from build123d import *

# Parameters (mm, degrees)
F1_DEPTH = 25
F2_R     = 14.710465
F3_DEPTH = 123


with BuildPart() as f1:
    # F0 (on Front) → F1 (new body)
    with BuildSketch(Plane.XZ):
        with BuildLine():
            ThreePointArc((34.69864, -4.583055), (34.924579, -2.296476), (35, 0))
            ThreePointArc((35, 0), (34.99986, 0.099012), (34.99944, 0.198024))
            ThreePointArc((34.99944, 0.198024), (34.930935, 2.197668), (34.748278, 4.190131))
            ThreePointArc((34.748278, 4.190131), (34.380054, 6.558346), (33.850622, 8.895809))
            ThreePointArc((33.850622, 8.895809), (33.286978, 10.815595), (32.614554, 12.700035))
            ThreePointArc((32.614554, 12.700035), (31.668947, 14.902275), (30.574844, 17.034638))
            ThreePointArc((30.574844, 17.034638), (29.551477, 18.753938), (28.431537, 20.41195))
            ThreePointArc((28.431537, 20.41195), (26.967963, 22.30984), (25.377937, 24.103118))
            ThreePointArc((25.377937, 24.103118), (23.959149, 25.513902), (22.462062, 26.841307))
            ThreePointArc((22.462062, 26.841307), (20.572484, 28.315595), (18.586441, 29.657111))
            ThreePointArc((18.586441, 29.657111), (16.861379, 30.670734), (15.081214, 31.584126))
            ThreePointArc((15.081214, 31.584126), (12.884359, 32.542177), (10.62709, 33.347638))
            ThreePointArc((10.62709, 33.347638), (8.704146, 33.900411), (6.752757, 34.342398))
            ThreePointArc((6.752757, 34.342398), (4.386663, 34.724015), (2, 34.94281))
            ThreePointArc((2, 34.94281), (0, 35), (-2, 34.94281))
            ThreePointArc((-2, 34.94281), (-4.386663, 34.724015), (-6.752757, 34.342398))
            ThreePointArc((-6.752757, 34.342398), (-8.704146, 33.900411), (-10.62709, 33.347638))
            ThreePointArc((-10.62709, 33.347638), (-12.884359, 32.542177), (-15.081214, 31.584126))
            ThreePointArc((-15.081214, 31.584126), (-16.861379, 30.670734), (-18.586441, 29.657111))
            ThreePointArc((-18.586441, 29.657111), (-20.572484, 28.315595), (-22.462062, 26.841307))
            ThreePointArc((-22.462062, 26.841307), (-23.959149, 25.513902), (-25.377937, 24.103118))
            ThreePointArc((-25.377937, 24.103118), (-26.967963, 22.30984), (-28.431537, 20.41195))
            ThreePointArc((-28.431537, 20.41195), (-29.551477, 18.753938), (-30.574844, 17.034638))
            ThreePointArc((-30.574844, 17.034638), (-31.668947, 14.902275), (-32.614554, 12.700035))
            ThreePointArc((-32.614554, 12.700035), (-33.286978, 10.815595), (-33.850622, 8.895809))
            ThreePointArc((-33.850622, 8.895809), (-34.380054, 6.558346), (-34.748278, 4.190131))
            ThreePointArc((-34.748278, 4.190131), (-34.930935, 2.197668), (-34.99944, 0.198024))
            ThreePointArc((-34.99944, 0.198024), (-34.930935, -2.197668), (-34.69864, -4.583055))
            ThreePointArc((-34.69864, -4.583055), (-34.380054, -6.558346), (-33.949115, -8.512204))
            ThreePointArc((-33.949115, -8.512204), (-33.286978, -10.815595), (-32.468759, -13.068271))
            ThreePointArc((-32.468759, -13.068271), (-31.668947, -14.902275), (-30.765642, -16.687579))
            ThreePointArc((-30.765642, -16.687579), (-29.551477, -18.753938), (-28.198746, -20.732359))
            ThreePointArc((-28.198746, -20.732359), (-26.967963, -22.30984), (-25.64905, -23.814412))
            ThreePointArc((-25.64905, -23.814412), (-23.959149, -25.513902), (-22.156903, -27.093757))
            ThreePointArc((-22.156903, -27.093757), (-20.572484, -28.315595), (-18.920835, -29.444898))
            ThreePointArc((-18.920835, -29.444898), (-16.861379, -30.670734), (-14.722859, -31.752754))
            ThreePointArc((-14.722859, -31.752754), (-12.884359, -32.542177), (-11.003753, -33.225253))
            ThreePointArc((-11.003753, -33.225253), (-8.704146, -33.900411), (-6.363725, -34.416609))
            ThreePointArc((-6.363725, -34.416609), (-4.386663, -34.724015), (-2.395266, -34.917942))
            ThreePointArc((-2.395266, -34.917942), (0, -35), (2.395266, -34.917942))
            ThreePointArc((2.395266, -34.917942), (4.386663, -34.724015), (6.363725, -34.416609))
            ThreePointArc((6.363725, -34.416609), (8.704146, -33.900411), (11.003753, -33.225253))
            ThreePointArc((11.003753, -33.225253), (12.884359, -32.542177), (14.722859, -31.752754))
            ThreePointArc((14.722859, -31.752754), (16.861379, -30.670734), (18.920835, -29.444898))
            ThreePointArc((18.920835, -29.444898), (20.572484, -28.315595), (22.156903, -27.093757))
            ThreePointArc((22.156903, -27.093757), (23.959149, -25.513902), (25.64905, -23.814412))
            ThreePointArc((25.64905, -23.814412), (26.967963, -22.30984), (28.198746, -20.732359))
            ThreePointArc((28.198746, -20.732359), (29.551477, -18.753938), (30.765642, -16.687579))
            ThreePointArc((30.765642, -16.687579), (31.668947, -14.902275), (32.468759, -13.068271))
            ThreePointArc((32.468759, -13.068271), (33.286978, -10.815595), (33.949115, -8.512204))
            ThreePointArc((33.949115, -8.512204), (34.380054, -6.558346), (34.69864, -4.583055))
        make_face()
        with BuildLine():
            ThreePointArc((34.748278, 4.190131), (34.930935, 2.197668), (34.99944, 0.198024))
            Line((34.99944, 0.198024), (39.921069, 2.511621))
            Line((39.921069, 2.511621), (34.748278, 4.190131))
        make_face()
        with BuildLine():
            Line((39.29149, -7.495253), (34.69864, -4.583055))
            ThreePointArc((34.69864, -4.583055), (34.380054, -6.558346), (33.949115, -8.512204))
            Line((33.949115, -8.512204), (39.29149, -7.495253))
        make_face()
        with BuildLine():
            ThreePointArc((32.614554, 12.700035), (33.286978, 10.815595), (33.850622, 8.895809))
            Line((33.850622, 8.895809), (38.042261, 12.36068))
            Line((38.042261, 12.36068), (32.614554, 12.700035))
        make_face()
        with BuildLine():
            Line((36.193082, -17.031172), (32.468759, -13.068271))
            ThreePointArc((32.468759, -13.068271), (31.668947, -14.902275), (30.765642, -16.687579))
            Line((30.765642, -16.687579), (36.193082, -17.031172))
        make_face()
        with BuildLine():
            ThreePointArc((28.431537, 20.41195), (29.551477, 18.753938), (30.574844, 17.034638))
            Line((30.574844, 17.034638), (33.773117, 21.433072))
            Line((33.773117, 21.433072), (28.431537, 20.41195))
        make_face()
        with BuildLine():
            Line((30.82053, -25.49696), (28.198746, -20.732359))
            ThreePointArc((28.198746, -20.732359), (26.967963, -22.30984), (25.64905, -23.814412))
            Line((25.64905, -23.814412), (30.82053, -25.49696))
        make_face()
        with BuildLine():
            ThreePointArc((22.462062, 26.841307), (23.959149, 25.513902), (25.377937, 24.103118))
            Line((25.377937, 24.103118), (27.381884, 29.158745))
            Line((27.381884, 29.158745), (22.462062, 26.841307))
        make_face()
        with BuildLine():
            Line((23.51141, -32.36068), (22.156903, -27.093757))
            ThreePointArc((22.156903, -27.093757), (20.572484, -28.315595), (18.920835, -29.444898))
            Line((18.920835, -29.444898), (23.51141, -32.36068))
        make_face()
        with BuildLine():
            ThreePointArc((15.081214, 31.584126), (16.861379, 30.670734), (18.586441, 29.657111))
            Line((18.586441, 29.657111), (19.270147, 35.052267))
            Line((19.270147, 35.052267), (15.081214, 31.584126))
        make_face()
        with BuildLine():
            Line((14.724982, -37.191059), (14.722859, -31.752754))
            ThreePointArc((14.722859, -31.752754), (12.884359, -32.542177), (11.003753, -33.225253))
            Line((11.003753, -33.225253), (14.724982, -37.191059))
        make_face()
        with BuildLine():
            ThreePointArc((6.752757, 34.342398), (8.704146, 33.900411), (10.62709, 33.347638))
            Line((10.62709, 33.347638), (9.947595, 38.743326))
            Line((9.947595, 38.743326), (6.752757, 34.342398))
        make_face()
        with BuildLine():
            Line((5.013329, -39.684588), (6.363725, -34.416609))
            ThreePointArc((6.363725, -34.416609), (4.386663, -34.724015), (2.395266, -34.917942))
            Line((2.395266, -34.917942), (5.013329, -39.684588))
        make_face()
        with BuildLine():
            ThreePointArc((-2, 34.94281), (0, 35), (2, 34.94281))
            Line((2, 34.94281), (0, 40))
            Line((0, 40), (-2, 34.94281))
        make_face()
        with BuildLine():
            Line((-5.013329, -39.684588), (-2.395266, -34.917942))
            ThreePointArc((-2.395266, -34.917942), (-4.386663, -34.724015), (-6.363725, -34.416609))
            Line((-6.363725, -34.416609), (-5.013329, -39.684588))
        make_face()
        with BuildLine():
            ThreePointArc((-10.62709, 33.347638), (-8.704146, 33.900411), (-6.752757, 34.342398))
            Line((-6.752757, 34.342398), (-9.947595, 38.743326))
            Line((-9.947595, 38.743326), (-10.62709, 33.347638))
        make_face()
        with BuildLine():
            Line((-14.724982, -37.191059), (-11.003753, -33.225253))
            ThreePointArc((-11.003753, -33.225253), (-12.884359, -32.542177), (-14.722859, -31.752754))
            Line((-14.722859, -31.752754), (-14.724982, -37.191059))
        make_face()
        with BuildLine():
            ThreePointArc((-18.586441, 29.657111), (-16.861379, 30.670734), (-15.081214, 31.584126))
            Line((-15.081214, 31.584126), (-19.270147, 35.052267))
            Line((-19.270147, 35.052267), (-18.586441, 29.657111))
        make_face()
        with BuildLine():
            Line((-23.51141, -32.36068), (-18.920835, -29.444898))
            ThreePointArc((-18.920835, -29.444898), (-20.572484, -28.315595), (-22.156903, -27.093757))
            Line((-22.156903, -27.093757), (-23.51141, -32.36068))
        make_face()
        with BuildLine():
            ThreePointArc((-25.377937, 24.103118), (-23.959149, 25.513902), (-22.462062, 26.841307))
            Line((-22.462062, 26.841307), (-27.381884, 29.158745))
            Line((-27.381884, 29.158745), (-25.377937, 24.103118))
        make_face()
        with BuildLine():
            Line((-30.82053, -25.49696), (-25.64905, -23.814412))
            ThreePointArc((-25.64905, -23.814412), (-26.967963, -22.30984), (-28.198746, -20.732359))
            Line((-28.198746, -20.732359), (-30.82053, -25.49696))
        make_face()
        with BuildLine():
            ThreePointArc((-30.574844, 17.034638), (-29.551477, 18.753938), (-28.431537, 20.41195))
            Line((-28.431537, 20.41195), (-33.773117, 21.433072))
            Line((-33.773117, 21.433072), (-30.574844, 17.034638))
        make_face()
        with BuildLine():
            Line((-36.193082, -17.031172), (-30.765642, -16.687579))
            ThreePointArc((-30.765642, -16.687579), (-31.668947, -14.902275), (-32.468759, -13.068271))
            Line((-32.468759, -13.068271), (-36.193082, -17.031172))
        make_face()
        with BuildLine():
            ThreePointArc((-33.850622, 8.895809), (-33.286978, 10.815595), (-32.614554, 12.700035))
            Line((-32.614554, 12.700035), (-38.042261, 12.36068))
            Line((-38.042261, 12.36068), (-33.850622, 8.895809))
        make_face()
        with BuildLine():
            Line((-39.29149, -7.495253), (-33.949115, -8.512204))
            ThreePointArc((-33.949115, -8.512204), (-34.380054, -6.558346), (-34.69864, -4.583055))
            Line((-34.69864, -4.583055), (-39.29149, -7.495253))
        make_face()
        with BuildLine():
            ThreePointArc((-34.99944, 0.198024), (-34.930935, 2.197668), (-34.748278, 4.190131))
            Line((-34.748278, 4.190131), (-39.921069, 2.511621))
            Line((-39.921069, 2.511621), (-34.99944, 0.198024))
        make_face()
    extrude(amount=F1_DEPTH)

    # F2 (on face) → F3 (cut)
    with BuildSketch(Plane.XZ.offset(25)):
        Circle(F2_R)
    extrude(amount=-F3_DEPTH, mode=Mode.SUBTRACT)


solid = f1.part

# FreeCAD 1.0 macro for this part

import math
import FreeCAD as App
import Part
import Sketcher

V = App.Vector
Q = App.Units.Quantity

doc = App.newDocument("Part")
params = doc.addObject("Spreadsheet::Sheet", "Params")
for row, (alias, value) in enumerate([
    ("pad1_length", "25 mm"),
    ("pocket1_length", "123 mm"),
], start=1):
    params.set(f"A{row}", alias)
    params.set(f"B{row}", "=" + value)
    params.setAlias(f"B{row}", alias)

body = doc.addObject("PartDesign::Body", "Body")

# Sketch on XZ plane
sketch1 = body.newObject("Sketcher::SketchObject", "Sketch")
sketch1.AttachmentSupport = (doc.getObject("XZ_Plane"), [""])
sketch1.MapMode = "FlatFace"
sketch1.addGeometry(Part.ArcOfCircle(Part.Circle(V(0.000098, -0.000008, 0), V(0, 0, 1), 34.999902), math.radians(-7.524179), math.radians(0.000013)), False)
sketch1.addGeometry(Part.ArcOfCircle(Part.Circle(V(-0.012548, -0.000001, 0), V(0, 0, 1), 35.012548), math.radians(0.000001), math.radians(0.324056)), False)
sketch1.addGeometry(Part.LineSegment(V(34.99944, 0.198024, 0), V(39.921069, 2.511621, 0)), False)
sketch1.addGeometry(Part.LineSegment(V(39.921069, 2.511621, 0), V(34.748278, 4.190131, 0)), False)
sketch1.addGeometry(Part.ArcOfCircle(Part.Circle(V(-0.000056, -0.00001, 0), V(0, 0, 1), 35.000057), math.radians(6.875835), math.radians(14.724163)), False)
sketch1.addGeometry(Part.LineSegment(V(33.850622, 8.895809, 0), V(38.042261, 12.36068, 0)), False)
sketch1.addGeometry(Part.LineSegment(V(38.042261, 12.36068, 0), V(32.614554, 12.700035, 0)), False)
sketch1.addGeometry(Part.ArcOfCircle(Part.Circle(V(0.000028, 0.000008, 0), V(0, 0, 1), 34.999971), math.radians(21.275833), math.radians(29.124182)), False)
sketch1.addGeometry(Part.LineSegment(V(30.574844, 17.034638, 0), V(33.773117, 21.433072, 0)), False)
sketch1.addGeometry(Part.LineSegment(V(33.773117, 21.433072, 0), V(28.431537, 20.41195, 0)), False)
sketch1.addGeometry(Part.ArcOfCircle(Part.Circle(V(-0.000009, -0.00001, 0), V(0, 0, 1), 35.000013), math.radians(35.675833), math.radians(43.524172)), False)
sketch1.addGeometry(Part.LineSegment(V(25.377937, 24.103118, 0), V(27.381884, 29.158745, 0)), False)
sketch1.addGeometry(Part.LineSegment(V(27.381884, 29.158745, 0), V(22.462062, 26.841307, 0)), False)
sketch1.addGeometry(Part.ArcOfCircle(Part.Circle(V(0.00004, 0.00006, 0), V(0, 0, 1), 34.999928), math.radians(50.075816), math.radians(57.924173)), False)
sketch1.addGeometry(Part.LineSegment(V(18.586441, 29.657111, 0), V(19.270147, 35.052267, 0)), False)
sketch1.addGeometry(Part.LineSegment(V(19.270147, 35.052267, 0), V(15.081214, 31.584126, 0)), False)
sketch1.addGeometry(Part.ArcOfCircle(Part.Circle(V(-0.000055, -0.000147, 0), V(0, 0, 1), 35.000157), math.radians(64.475852), math.radians(72.324158)), False)
sketch1.addGeometry(Part.LineSegment(V(10.62709, 33.347638, 0), V(9.947595, 38.743326, 0)), False)
sketch1.addGeometry(Part.LineSegment(V(9.947595, 38.743326, 0), V(6.752757, 34.342398, 0)), False)
sketch1.addGeometry(Part.ArcOfCircle(Part.Circle(V(0.000029, 0.000186, 0), V(0, 0, 1), 34.999812), math.radians(78.875818), math.radians(86.724202)), False)
sketch1.addGeometry(Part.LineSegment(V(2, 34.94281, 0), V(0, 40, 0)), False)
sketch1.addGeometry(Part.LineSegment(V(0, 40, 0), V(-2, 34.94281, 0)), False)
sketch1.addGeometry(Part.ArcOfCircle(Part.Circle(V(-0.000029, 0.000186, 0), V(0, 0, 1), 34.999812), math.radians(93.275798), math.radians(101.124182)), False)
sketch1.addGeometry(Part.LineSegment(V(-6.752757, 34.342398, 0), V(-9.947595, 38.743326, 0)), False)
sketch1.addGeometry(Part.LineSegment(V(-9.947595, 38.743326, 0), V(-10.62709, 33.347638, 0)), False)
sketch1.addGeometry(Part.ArcOfCircle(Part.Circle(V(0.000055, -0.000147, 0), V(0, 0, 1), 35.000157), math.radians(107.675842), math.radians(115.524148)), False)
sketch1.addGeometry(Part.LineSegment(V(-15.081214, 31.584126, 0), V(-19.270147, 35.052267, 0)), False)
sketch1.addGeometry(Part.LineSegment(V(-19.270147, 35.052267, 0), V(-18.586441, 29.657111, 0)), False)
sketch1.addGeometry(Part.ArcOfCircle(Part.Circle(V(-0.00004, 0.00006, 0), V(0, 0, 1), 34.999928), math.radians(122.075827), math.radians(129.924184)), False)
sketch1.addGeometry(Part.LineSegment(V(-22.462062, 26.841307, 0), V(-27.381884, 29.158745, 0)), False)
sketch1.addGeometry(Part.LineSegment(V(-27.381884, 29.158745, 0), V(-25.377937, 24.103118, 0)), False)
sketch1.addGeometry(Part.ArcOfCircle(Part.Circle(V(0.000009, -0.00001, 0), V(0, 0, 1), 35.000013), math.radians(136.475828), math.radians(144.324167)), False)
sketch1.addGeometry(Part.LineSegment(V(-28.431537, 20.41195, 0), V(-33.773117, 21.433072, 0)), False)
sketch1.addGeometry(Part.LineSegment(V(-33.773117, 21.433072, 0), V(-30.574844, 17.034638, 0)), False)
sketch1.addGeometry(Part.ArcOfCircle(Part.Circle(V(-0.000028, 0.000008, 0), V(0, 0, 1), 34.999971), math.radians(150.875818), math.radians(158.724167)), False)
sketch1.addGeometry(Part.LineSegment(V(-32.614554, 12.700035, 0), V(-38.042261, 12.36068, 0)), False)
sketch1.addGeometry(Part.LineSegment(V(-38.042261, 12.36068, 0), V(-33.850622, 8.895809, 0)), False)
sketch1.addGeometry(Part.ArcOfCircle(Part.Circle(V(0.000056, -0.00001, 0), V(0, 0, 1), 35.000057), math.radians(165.275837), math.radians(173.124165)), False)
sketch1.addGeometry(Part.LineSegment(V(-34.748278, 4.190131, 0), V(-39.921069, 2.511621, 0)), False)
sketch1.addGeometry(Part.LineSegment(V(-39.921069, 2.511621, 0), V(-34.99944, 0.198024, 0)), False)
sketch1.addGeometry(Part.ArcOfCircle(Part.Circle(V(0.000291, 0.000019, 0), V(0, 0, 1), 35.000291), math.radians(179.675862), math.radians(187.524138)), False)
sketch1.addGeometry(Part.LineSegment(V(-34.69864, -4.583055, 0), V(-39.29149, -7.495253, 0)), False)
sketch1.addGeometry(Part.LineSegment(V(-39.29149, -7.495253, 0), V(-33.949115, -8.512204, 0)), False)
sketch1.addGeometry(Part.ArcOfCircle(Part.Circle(V(0.00013, 0.000043, 0), V(0, 0, 1), 35.000137), math.radians(-165.924155), math.radians(-158.075843)), False)
sketch1.addGeometry(Part.LineSegment(V(-32.468759, -13.068271, 0), V(-36.193082, -17.031172, 0)), False)
sketch1.addGeometry(Part.LineSegment(V(-36.193082, -17.031172, 0), V(-30.765642, -16.687579, 0)), False)
sketch1.addGeometry(Part.ArcOfCircle(Part.Circle(V(0.0001, 0.000067, 0), V(0, 0, 1), 35.00012), math.radians(-151.524152), math.radians(-143.675837)), False)
sketch1.addGeometry(Part.LineSegment(V(-28.198746, -20.732359, 0), V(-30.82053, -25.49696, 0)), False)
sketch1.addGeometry(Part.LineSegment(V(-30.82053, -25.49696, 0), V(-25.64905, -23.814412, 0)), False)
sketch1.addGeometry(Part.ArcOfCircle(Part.Circle(V(-0.000057, -0.000066, 0), V(0, 0, 1), 34.999914), math.radians(-137.124186), math.radians(-129.275826)), False)
sketch1.addGeometry(Part.LineSegment(V(-22.156903, -27.093757, 0), V(-23.51141, -32.36068, 0)), False)
sketch1.addGeometry(Part.LineSegment(V(-23.51141, -32.36068, 0), V(-18.920835, -29.444898, 0)), False)
sketch1.addGeometry(Part.ArcOfCircle(Part.Circle(V(-0.000111, -0.000192, 0), V(0, 0, 1), 34.999779), math.radians(-122.724188), math.radians(-114.875795)), False)
sketch1.addGeometry(Part.LineSegment(V(-14.722859, -31.752754, 0), V(-14.724982, -37.191059, 0)), False)
sketch1.addGeometry(Part.LineSegment(V(-14.724982, -37.191059, 0), V(-11.003753, -33.225253, 0)), False)
sketch1.addGeometry(Part.ArcOfCircle(Part.Circle(V(-0.000049, -0.000173, 0), V(0, 0, 1), 34.99982), math.radians(-108.324182), math.radians(-100.475801)), False)
sketch1.addGeometry(Part.LineSegment(V(-6.363725, -34.416609, 0), V(-5.013329, -39.684588, 0)), False)
sketch1.addGeometry(Part.LineSegment(V(-5.013329, -39.684588, 0), V(-2.395266, -34.917942, 0)), False)
sketch1.addGeometry(Part.ArcOfCircle(Part.Circle(V(0, -0.000166, 0), V(0, 0, 1), 34.999834), math.radians(-93.92419), math.radians(-86.07581)), False)
sketch1.addGeometry(Part.LineSegment(V(2.395266, -34.917942, 0), V(5.013329, -39.684588, 0)), False)
sketch1.addGeometry(Part.LineSegment(V(5.013329, -39.684588, 0), V(6.363725, -34.416609, 0)), False)
sketch1.addGeometry(Part.ArcOfCircle(Part.Circle(V(0.000049, -0.000173, 0), V(0, 0, 1), 34.99982), math.radians(-79.524199), math.radians(-71.675818)), False)
sketch1.addGeometry(Part.LineSegment(V(11.003753, -33.225253, 0), V(14.724982, -37.191059, 0)), False)
sketch1.addGeometry(Part.LineSegment(V(14.724982, -37.191059, 0), V(14.722859, -31.752754, 0)), False)
sketch1.addGeometry(Part.ArcOfCircle(Part.Circle(V(0.000111, -0.000192, 0), V(0, 0, 1), 34.999779), math.radians(-65.124205), math.radians(-57.275812)), False)
sketch1.addGeometry(Part.LineSegment(V(18.920835, -29.444898, 0), V(23.51141, -32.36068, 0)), False)
sketch1.addGeometry(Part.LineSegment(V(23.51141, -32.36068, 0), V(22.156903, -27.093757, 0)), False)
sketch1.addGeometry(Part.ArcOfCircle(Part.Circle(V(0.000057, -0.000066, 0), V(0, 0, 1), 34.999914), math.radians(-50.724174), math.radians(-42.875814)), False)
sketch1.addGeometry(Part.LineSegment(V(25.64905, -23.814412, 0), V(30.82053, -25.49696, 0)), False)
sketch1.addGeometry(Part.LineSegment(V(30.82053, -25.49696, 0), V(28.198746, -20.732359, 0)), False)
sketch1.addGeometry(Part.ArcOfCircle(Part.Circle(V(-0.0001, 0.000067, 0), V(0, 0, 1), 35.00012), math.radians(-36.324163), math.radians(-28.475848)), False)
sketch1.addGeometry(Part.LineSegment(V(30.765642, -16.687579, 0), V(36.193082, -17.031172, 0)), False)
sketch1.addGeometry(Part.LineSegment(V(36.193082, -17.031172, 0), V(32.468759, -13.068271, 0)), False)
sketch1.addGeometry(Part.ArcOfCircle(Part.Circle(V(-0.00013, 0.000043, 0), V(0, 0, 1), 35.000137), math.radians(-21.924157), math.radians(-14.075845)), False)
sketch1.addGeometry(Part.LineSegment(V(33.949115, -8.512204, 0), V(39.29149, -7.495253, 0)), False)
sketch1.addGeometry(Part.LineSegment(V(39.29149, -7.495253, 0), V(34.69864, -4.583055, 0)), False)
sketch1.addConstraint(Sketcher.Constraint("Coincident", 0, 2, 1, 1))
sketch1.addConstraint(Sketcher.Constraint("Coincident", 1, 2, 2, 1))
sketch1.addConstraint(Sketcher.Constraint("Coincident", 2, 2, 3, 1))
sketch1.addConstraint(Sketcher.Constraint("Coincident", 3, 2, 4, 1))
sketch1.addConstraint(Sketcher.Constraint("Coincident", 4, 2, 5, 1))
sketch1.addConstraint(Sketcher.Constraint("Coincident", 5, 2, 6, 1))
sketch1.addConstraint(Sketcher.Constraint("Coincident", 6, 2, 7, 1))
sketch1.addConstraint(Sketcher.Constraint("Coincident", 7, 2, 8, 1))
sketch1.addConstraint(Sketcher.Constraint("Coincident", 8, 2, 9, 1))
sketch1.addConstraint(Sketcher.Constraint("Coincident", 9, 2, 10, 1))
sketch1.addConstraint(Sketcher.Constraint("Coincident", 10, 2, 11, 1))
sketch1.addConstraint(Sketcher.Constraint("Coincident", 11, 2, 12, 1))
sketch1.addConstraint(Sketcher.Constraint("Coincident", 12, 2, 13, 1))
sketch1.addConstraint(Sketcher.Constraint("Coincident", 13, 2, 14, 1))
sketch1.addConstraint(Sketcher.Constraint("Coincident", 14, 2, 15, 1))
sketch1.addConstraint(Sketcher.Constraint("Coincident", 15, 2, 16, 1))
sketch1.addConstraint(Sketcher.Constraint("Coincident", 16, 2, 17, 1))
sketch1.addConstraint(Sketcher.Constraint("Coincident", 17, 2, 18, 1))
sketch1.addConstraint(Sketcher.Constraint("Coincident", 18, 2, 19, 1))
sketch1.addConstraint(Sketcher.Constraint("Coincident", 19, 2, 20, 1))
sketch1.addConstraint(Sketcher.Constraint("Coincident", 20, 2, 21, 1))
sketch1.addConstraint(Sketcher.Constraint("Coincident", 21, 2, 22, 1))
sketch1.addConstraint(Sketcher.Constraint("Coincident", 22, 2, 23, 1))
sketch1.addConstraint(Sketcher.Constraint("Coincident", 23, 2, 24, 1))
sketch1.addConstraint(Sketcher.Constraint("Coincident", 24, 2, 25, 1))
sketch1.addConstraint(Sketcher.Constraint("Coincident", 25, 2, 26, 1))
sketch1.addConstraint(Sketcher.Constraint("Coincident", 26, 2, 27, 1))
sketch1.addConstraint(Sketcher.Constraint("Coincident", 27, 2, 28, 1))
sketch1.addConstraint(Sketcher.Constraint("Coincident", 28, 2, 29, 1))
sketch1.addConstraint(Sketcher.Constraint("Coincident", 29, 2, 30, 1))
sketch1.addConstraint(Sketcher.Constraint("Coincident", 30, 2, 31, 1))
sketch1.addConstraint(Sketcher.Constraint("Coincident", 31, 2, 32, 1))
sketch1.addConstraint(Sketcher.Constraint("Coincident", 32, 2, 33, 1))
sketch1.addConstraint(Sketcher.Constraint("Coincident", 33, 2, 34, 1))
sketch1.addConstraint(Sketcher.Constraint("Coincident", 34, 2, 35, 1))
sketch1.addConstraint(Sketcher.Constraint("Coincident", 35, 2, 36, 1))
sketch1.addConstraint(Sketcher.Constraint("Coincident", 36, 2, 37, 1))
sketch1.addConstraint(Sketcher.Constraint("Coincident", 37, 2, 38, 1))
sketch1.addConstraint(Sketcher.Constraint("Coincident", 38, 2, 39, 1))
sketch1.addConstraint(Sketcher.Constraint("Coincident", 39, 2, 40, 1))
sketch1.addConstraint(Sketcher.Constraint("Coincident", 40, 2, 41, 1))
sketch1.addConstraint(Sketcher.Constraint("Coincident", 41, 2, 42, 1))
sketch1.addConstraint(Sketcher.Constraint("Coincident", 42, 2, 43, 1))
sketch1.addConstraint(Sketcher.Constraint("Coincident", 43, 2, 44, 1))
sketch1.addConstraint(Sketcher.Constraint("Coincident", 44, 2, 45, 1))
sketch1.addConstraint(Sketcher.Constraint("Coincident", 45, 2, 46, 1))
sketch1.addConstraint(Sketcher.Constraint("Coincident", 46, 2, 47, 1))
sketch1.addConstraint(Sketcher.Constraint("Coincident", 47, 2, 48, 1))
sketch1.addConstraint(Sketcher.Constraint("Coincident", 48, 2, 49, 1))
sketch1.addConstraint(Sketcher.Constraint("Coincident", 49, 2, 50, 1))
sketch1.addConstraint(Sketcher.Constraint("Coincident", 50, 2, 51, 1))
sketch1.addConstraint(Sketcher.Constraint("Coincident", 51, 2, 52, 1))
sketch1.addConstraint(Sketcher.Constraint("Coincident", 52, 2, 53, 1))
sketch1.addConstraint(Sketcher.Constraint("Coincident", 53, 2, 54, 1))
sketch1.addConstraint(Sketcher.Constraint("Coincident", 54, 2, 55, 1))
sketch1.addConstraint(Sketcher.Constraint("Coincident", 55, 2, 56, 1))
sketch1.addConstraint(Sketcher.Constraint("Coincident", 56, 2, 57, 1))
sketch1.addConstraint(Sketcher.Constraint("Coincident", 57, 2, 58, 1))
sketch1.addConstraint(Sketcher.Constraint("Coincident", 58, 2, 59, 1))
sketch1.addConstraint(Sketcher.Constraint("Coincident", 59, 2, 60, 1))
sketch1.addConstraint(Sketcher.Constraint("Coincident", 60, 2, 61, 1))
sketch1.addConstraint(Sketcher.Constraint("Coincident", 61, 2, 62, 1))
sketch1.addConstraint(Sketcher.Constraint("Coincident", 62, 2, 63, 1))
sketch1.addConstraint(Sketcher.Constraint("Coincident", 63, 2, 64, 1))
sketch1.addConstraint(Sketcher.Constraint("Coincident", 64, 2, 65, 1))
sketch1.addConstraint(Sketcher.Constraint("Coincident", 65, 2, 66, 1))
sketch1.addConstraint(Sketcher.Constraint("Coincident", 66, 2, 67, 1))
sketch1.addConstraint(Sketcher.Constraint("Coincident", 67, 2, 68, 1))
sketch1.addConstraint(Sketcher.Constraint("Coincident", 68, 2, 69, 1))
sketch1.addConstraint(Sketcher.Constraint("Coincident", 69, 2, 70, 1))
sketch1.addConstraint(Sketcher.Constraint("Coincident", 70, 2, 71, 1))
sketch1.addConstraint(Sketcher.Constraint("Coincident", 71, 2, 72, 1))
sketch1.addConstraint(Sketcher.Constraint("Coincident", 72, 2, 73, 1))
sketch1.addConstraint(Sketcher.Constraint("Coincident", 73, 2, 74, 1))
sketch1.addConstraint(Sketcher.Constraint("Coincident", 74, 2, 75, 1))
sketch1.addConstraint(Sketcher.Constraint("Coincident", 75, 2, 0, 1))
sketch1.addConstraint(Sketcher.Constraint("PointOnObject", 1, 3, -1))
sketch1.addConstraint(Sketcher.Constraint("PointOnObject", 58, 3, -2))
sketch1.addConstraint(Sketcher.Constraint("PointOnObject", 0, 2, -1))
sketch1.addConstraint(Sketcher.Constraint("PointOnObject", 20, 2, -2))
sketch1.addConstraint(Sketcher.Constraint("DistanceX", -1, 1, 0, 2, Q("35 mm")))
sketch1.addConstraint(Sketcher.Constraint("DistanceX", -1, 1, 19, 2, Q("2 mm")))
sketch1.addConstraint(Sketcher.Constraint("DistanceY", -1, 1, 20, 2, Q("40 mm")))
sketch1.addConstraint(Sketcher.Constraint("DistanceX", 21, 2, -1, 1, Q("2 mm")))
sketch1.addConstraint(Sketcher.Constraint("Radius", 0, Q("34.999902 mm")))
sketch1.addConstraint(Sketcher.Constraint("Radius", 7, Q("34.999971 mm")))
sketch1.addConstraint(Sketcher.Constraint("Radius", 13, Q("34.999928 mm")))
sketch1.addConstraint(Sketcher.Constraint("Radius", 28, Q("34.999928 mm")))
sketch1.addConstraint(Sketcher.Constraint("Radius", 34, Q("34.999971 mm")))
sketch1.addConstraint(Sketcher.Constraint("Radius", 40, Q("35.000291 mm")))
sketch1.addConstraint(Sketcher.Constraint("Radius", 46, Q("35.00012 mm")))
sketch1.addConstraint(Sketcher.Constraint("Radius", 52, Q("34.999779 mm")))
sketch1.addConstraint(Sketcher.Constraint("Radius", 55, Q("34.99982 mm")))
sketch1.addConstraint(Sketcher.Constraint("Radius", 61, Q("34.99982 mm")))
sketch1.addConstraint(Sketcher.Constraint("Radius", 64, Q("34.999779 mm")))
sketch1.addConstraint(Sketcher.Constraint("Radius", 70, Q("35.00012 mm")))
sketch1.addConstraint(Sketcher.Constraint("Radius", 1, Q("35.012548 mm")))
sketch1.addConstraint(Sketcher.Constraint("Radius", 4, Q("35.000057 mm")))
sketch1.addConstraint(Sketcher.Constraint("Radius", 10, Q("35.000013 mm")))
sketch1.addConstraint(Sketcher.Constraint("Radius", 16, Q("35.000157 mm")))
sketch1.addConstraint(Sketcher.Constraint("Radius", 19, Q("34.999812 mm")))
sketch1.addConstraint(Sketcher.Constraint("Radius", 22, Q("34.999812 mm")))
sketch1.addConstraint(Sketcher.Constraint("Radius", 25, Q("35.000157 mm")))
sketch1.addConstraint(Sketcher.Constraint("Radius", 31, Q("35.000013 mm")))
sketch1.addConstraint(Sketcher.Constraint("Radius", 37, Q("35.000057 mm")))
sketch1.addConstraint(Sketcher.Constraint("Radius", 43, Q("35.000137 mm")))
sketch1.addConstraint(Sketcher.Constraint("Radius", 49, Q("34.999914 mm")))
sketch1.addConstraint(Sketcher.Constraint("Radius", 58, Q("34.999834 mm")))
sketch1.addConstraint(Sketcher.Constraint("Radius", 67, Q("34.999914 mm")))
sketch1.addConstraint(Sketcher.Constraint("Radius", 73, Q("35.000137 mm")))
sketch1.addConstraint(Sketcher.Constraint("DistanceY", -1, 1, 18, 2, Q("34.342398 mm")))
sketch1.addConstraint(Sketcher.Constraint("DistanceY", -1, 1, 22, 2, Q("34.342398 mm")))
sketch1.addConstraint(Sketcher.Constraint("DistanceX", -1, 1, 40, 3, Q("0.000291 mm")))
sketch1.addConstraint(Sketcher.Constraint("DistanceX", -1, 1, 43, 3, Q("0.00013 mm")))
sketch1.addConstraint(Sketcher.Constraint("DistanceX", 52, 3, -1, 1, Q("0.000111 mm")))
sketch1.addConstraint(Sketcher.Constraint("DistanceY", 52, 3, -1, 1, Q("0.000192 mm")))
sketch1.addConstraint(Sketcher.Constraint("DistanceX", -1, 1, 64, 3, Q("0.000111 mm")))
sketch1.addConstraint(Sketcher.Constraint("DistanceY", 64, 3, -1, 1, Q("0.000192 mm")))
sketch1.addConstraint(Sketcher.Constraint("DistanceX", 73, 3, -1, 1, Q("0.00013 mm")))
sketch1.addConstraint(Sketcher.Constraint("DistanceX", -1, 1, 1, 2, Q("34.99944 mm")))
sketch1.addConstraint(Sketcher.Constraint("DistanceX", -1, 1, 2, 2, Q("39.921069 mm")))
sketch1.addConstraint(Sketcher.Constraint("DistanceY", -1, 1, 2, 2, Q("2.511621 mm")))
sketch1.addConstraint(Sketcher.Constraint("DistanceY", -1, 1, 3, 2, Q("4.190131 mm")))
sketch1.addConstraint(Sketcher.Constraint("DistanceX", -1, 1, 4, 2, Q("33.850622 mm")))
sketch1.addConstraint(Sketcher.Constraint("DistanceY", -1, 1, 4, 2, Q("8.895809 mm")))
sketch1.addConstraint(Sketcher.Constraint("DistanceX", -1, 1, 5, 2, Q("38.042261 mm")))
sketch1.addConstraint(Sketcher.Constraint("DistanceY", -1, 1, 5, 2, Q("12.36068 mm")))
sketch1.addConstraint(Sketcher.Constraint("DistanceY", -1, 1, 7, 2, Q("17.034638 mm")))
sketch1.addConstraint(Sketcher.Constraint("DistanceY", -1, 1, 8, 2, Q("21.433072 mm")))
sketch1.addConstraint(Sketcher.Constraint("DistanceY", -1, 1, 9, 2, Q("20.41195 mm")))
sketch1.addConstraint(Sketcher.Constraint("DistanceX", -1, 1, 12, 2, Q("22.462062 mm")))
sketch1.addConstraint(Sketcher.Constraint("DistanceX", -1, 1, 13, 2, Q("18.586441 mm")))
sketch1.addConstraint(Sketcher.Constraint("DistanceY", -1, 1, 13, 2, Q("29.657111 mm")))
sketch1.addConstraint(Sketcher.Constraint("DistanceX", -1, 1, 16, 2, Q("10.62709 mm")))
sketch1.addConstraint(Sketcher.Constraint("DistanceY", -1, 1, 16, 2, Q("33.347638 mm")))
sketch1.addConstraint(Sketcher.Constraint("DistanceY", -1, 1, 19, 2, Q("34.94281 mm")))
sketch1.addConstraint(Sketcher.Constraint("DistanceY", -1, 1, 21, 2, Q("34.94281 mm")))
sketch1.addConstraint(Sketcher.Constraint("DistanceX", 24, 2, -1, 1, Q("10.62709 mm")))
sketch1.addConstraint(Sketcher.Constraint("DistanceY", -1, 1, 24, 2, Q("33.347638 mm")))
sketch1.addConstraint(Sketcher.Constraint("DistanceX", 27, 2, -1, 1, Q("18.586441 mm")))
sketch1.addConstraint(Sketcher.Constraint("DistanceY", -1, 1, 27, 2, Q("29.657111 mm")))
sketch1.addConstraint(Sketcher.Constraint("DistanceY", -1, 1, 31, 2, Q("20.41195 mm")))
sketch1.addConstraint(Sketcher.Constraint("DistanceY", -1, 1, 32, 2, Q("21.433072 mm")))
sketch1.addConstraint(Sketcher.Constraint("DistanceY", -1, 1, 33, 2, Q("17.034638 mm")))
sketch1.addConstraint(Sketcher.Constraint("DistanceX", 35, 2, -1, 1, Q("38.042261 mm")))
sketch1.addConstraint(Sketcher.Constraint("DistanceY", -1, 1, 35, 2, Q("12.36068 mm")))
sketch1.addConstraint(Sketcher.Constraint("DistanceY", -1, 1, 36, 2, Q("8.895809 mm")))
sketch1.addConstraint(Sketcher.Constraint("DistanceY", -1, 1, 37, 2, Q("4.190131 mm")))
sketch1.addConstraint(Sketcher.Constraint("DistanceX", 38, 2, -1, 1, Q("39.921069 mm")))
sketch1.addConstraint(Sketcher.Constraint("DistanceY", -1, 1, 38, 2, Q("2.511621 mm")))
sketch1.addConstraint(Sketcher.Constraint("DistanceX", 39, 2, -1, 1, Q("34.99944 mm")))
sketch1.addConstraint(Sketcher.Constraint("DistanceX", 40, 2, -1, 1, Q("34.69864 mm")))
sketch1.addConstraint(Sketcher.Constraint("DistanceX", 41, 2, -1, 1, Q("39.29149 mm")))
sketch1.addConstraint(Sketcher.Constraint("DistanceX", 43, 2, -1, 1, Q("32.468759 mm")))
sketch1.addConstraint(Sketcher.Constraint("DistanceY", 43, 2, -1, 1, Q("13.068271 mm")))
sketch1.addConstraint(Sketcher.Constraint("DistanceX", 44, 2, -1, 1, Q("36.193082 mm")))
sketch1.addConstraint(Sketcher.Constraint("DistanceX", 45, 2, -1, 1, Q("30.765642 mm")))
sketch1.addConstraint(Sketcher.Constraint("DistanceY", 45, 2, -1, 1, Q("16.687579 mm")))
sketch1.addConstraint(Sketcher.Constraint("DistanceY", 46, 2, -1, 1, Q("20.732359 mm")))
sketch1.addConstraint(Sketcher.Constraint("DistanceX", 47, 2, -1, 1, Q("30.82053 mm")))
sketch1.addConstraint(Sketcher.Constraint("DistanceY", 47, 2, -1, 1, Q("25.49696 mm")))
sketch1.addConstraint(Sketcher.Constraint("DistanceX", 48, 2, -1, 1, Q("25.64905 mm")))
sketch1.addConstraint(Sketcher.Constraint("DistanceX", 50, 2, -1, 1, Q("23.51141 mm")))
sketch1.addConstraint(Sketcher.Constraint("DistanceY", 50, 2, -1, 1, Q("32.36068 mm")))
sketch1.addConstraint(Sketcher.Constraint("DistanceX", 52, 2, -1, 1, Q("14.722859 mm")))
sketch1.addConstraint(Sketcher.Constraint("DistanceY", 53, 2, -1, 1, Q("37.191059 mm")))
sketch1.addConstraint(Sketcher.Constraint("DistanceY", 55, 2, -1, 1, Q("34.416609 mm")))
sketch1.addConstraint(Sketcher.Constraint("DistanceX", 56, 2, -1, 1, Q("5.013329 mm")))
sketch1.addConstraint(Sketcher.Constraint("DistanceY", 57, 2, -1, 1, Q("34.917942 mm")))
sketch1.addConstraint(Sketcher.Constraint("DistanceY", 58, 2, -1, 1, Q("34.917942 mm")))
sketch1.addConstraint(Sketcher.Constraint("DistanceX", -1, 1, 59, 2, Q("5.013329 mm")))
sketch1.addConstraint(Sketcher.Constraint("DistanceY", 60, 2, -1, 1, Q("34.416609 mm")))
sketch1.addConstraint(Sketcher.Constraint("DistanceY", 62, 2, -1, 1, Q("37.191059 mm")))
sketch1.addConstraint(Sketcher.Constraint("DistanceX", -1, 1, 63, 2, Q("14.722859 mm")))
sketch1.addConstraint(Sketcher.Constraint("DistanceX", -1, 1, 65, 2, Q("23.51141 mm")))
sketch1.addConstraint(Sketcher.Constraint("DistanceY", 65, 2, -1, 1, Q("32.36068 mm")))
sketch1.addConstraint(Sketcher.Constraint("DistanceX", -1, 1, 67, 2, Q("25.64905 mm")))
sketch1.addConstraint(Sketcher.Constraint("DistanceY", 67, 2, -1, 1, Q("23.814412 mm")))
sketch1.addConstraint(Sketcher.Constraint("DistanceX", -1, 1, 68, 2, Q("30.82053 mm")))
sketch1.addConstraint(Sketcher.Constraint("DistanceY", 68, 2, -1, 1, Q("25.49696 mm")))
sketch1.addConstraint(Sketcher.Constraint("DistanceY", 69, 2, -1, 1, Q("20.732359 mm")))
sketch1.addConstraint(Sketcher.Constraint("DistanceX", -1, 1, 70, 2, Q("30.765642 mm")))
sketch1.addConstraint(Sketcher.Constraint("DistanceY", 70, 2, -1, 1, Q("16.687579 mm")))
sketch1.addConstraint(Sketcher.Constraint("DistanceX", -1, 1, 71, 2, Q("36.193082 mm")))
sketch1.addConstraint(Sketcher.Constraint("DistanceX", -1, 1, 72, 2, Q("32.468759 mm")))
sketch1.addConstraint(Sketcher.Constraint("DistanceY", 72, 2, -1, 1, Q("13.068271 mm")))
sketch1.addConstraint(Sketcher.Constraint("DistanceX", -1, 1, 74, 2, Q("39.29149 mm")))
sketch1.addConstraint(Sketcher.Constraint("DistanceX", -1, 1, 75, 2, Q("34.69864 mm")))
sketch1.addConstraint(Sketcher.Constraint("Distance", 3, Q("5.438305 mm")))
sketch1.addConstraint(Sketcher.Constraint("Distance", 6, Q("5.438305 mm")))
sketch1.addConstraint(Sketcher.Constraint("Distance", 8, Q("5.438306 mm")))
sketch1.addConstraint(Sketcher.Constraint("Distance", 9, Q("5.438306 mm")))
sketch1.addConstraint(Sketcher.Constraint("Distance", 11, Q("5.438306 mm")))
sketch1.addConstraint(Sketcher.Constraint("Distance", 12, Q("5.438306 mm")))
sketch1.addConstraint(Sketcher.Constraint("Distance", 14, Q("5.438305 mm")))
sketch1.addConstraint(Sketcher.Constraint("Distance", 15, Q("5.438305 mm")))
sketch1.addConstraint(Sketcher.Constraint("Distance", 17, Q("5.438305 mm")))
sketch1.addConstraint(Sketcher.Constraint("Distance", 18, Q("5.438305 mm")))
sketch1.addConstraint(Sketcher.Constraint("Distance", 23, Q("5.438305 mm")))
sketch1.addConstraint(Sketcher.Constraint("Distance", 24, Q("5.438305 mm")))
sketch1.addConstraint(Sketcher.Constraint("Distance", 26, Q("5.438305 mm")))
sketch1.addConstraint(Sketcher.Constraint("Distance", 27, Q("5.438305 mm")))
sketch1.addConstraint(Sketcher.Constraint("Distance", 29, Q("5.438306 mm")))
sketch1.addConstraint(Sketcher.Constraint("Distance", 30, Q("5.438306 mm")))
sketch1.addConstraint(Sketcher.Constraint("Distance", 32, Q("5.438306 mm")))
sketch1.addConstraint(Sketcher.Constraint("Distance", 33, Q("5.438306 mm")))
sketch1.addConstraint(Sketcher.Constraint("Distance", 35, Q("5.438305 mm")))
sketch1.addConstraint(Sketcher.Constraint("Distance", 36, Q("5.438306 mm")))
sketch1.addConstraint(Sketcher.Constraint("Distance", 38, Q("5.438305 mm")))
sketch1.addConstraint(Sketcher.Constraint("Distance", 39, Q("5.438305 mm")))
sketch1.addConstraint(Sketcher.Constraint("Distance", 41, Q("5.438306 mm")))
sketch1.addConstraint(Sketcher.Constraint("Distance", 42, Q("5.438305 mm")))
sketch1.addConstraint(Sketcher.Constraint("Distance", 44, Q("5.438305 mm")))
sketch1.addConstraint(Sketcher.Constraint("Distance", 47, Q("5.438306 mm")))
sketch1.addConstraint(Sketcher.Constraint("Distance", 48, Q("5.438306 mm")))
sketch1.addConstraint(Sketcher.Constraint("Distance", 50, Q("5.438306 mm")))
sketch1.addConstraint(Sketcher.Constraint("Distance", 51, Q("5.438305 mm")))
sketch1.addConstraint(Sketcher.Constraint("Distance", 54, Q("5.438305 mm")))
sketch1.addConstraint(Sketcher.Constraint("Distance", 56, Q("5.438306 mm")))
sketch1.addConstraint(Sketcher.Constraint("Distance", 57, Q("5.438306 mm")))
sketch1.addConstraint(Sketcher.Constraint("Distance", 59, Q("5.438306 mm")))
sketch1.addConstraint(Sketcher.Constraint("Distance", 60, Q("5.438306 mm")))
sketch1.addConstraint(Sketcher.Constraint("Distance", 62, Q("5.438305 mm")))
sketch1.addConstraint(Sketcher.Constraint("Distance", 65, Q("5.438305 mm")))
sketch1.addConstraint(Sketcher.Constraint("Distance", 66, Q("5.438306 mm")))
sketch1.addConstraint(Sketcher.Constraint("Distance", 69, Q("5.438306 mm")))
sketch1.addConstraint(Sketcher.Constraint("Distance", 71, Q("5.438305 mm")))
sketch1.addConstraint(Sketcher.Constraint("Distance", 74, Q("5.438305 mm")))
sketch1.addConstraint(Sketcher.Constraint("Distance", 75, Q("5.438306 mm")))
sketch1.addConstraint(Sketcher.Constraint("DistanceY", 16, 3, -1, 1, Q("0.000147 mm")))
sketch1.addConstraint(Sketcher.Constraint("DistanceY", -1, 1, 19, 3, Q("0.000186 mm")))
sketch1.addConstraint(Sketcher.Constraint("DistanceY", -1, 1, 22, 3, Q("0.000186 mm")))
sketch1.addConstraint(Sketcher.Constraint("DistanceY", 25, 3, -1, 1, Q("0.000147 mm")))
sketch1.addConstraint(Sketcher.Constraint("DistanceY", 55, 3, -1, 1, Q("0.000173 mm")))
sketch1.addConstraint(Sketcher.Constraint("DistanceY", 58, 3, -1, 1, Q("0.000166 mm")))
sketch1.addConstraint(Sketcher.Constraint("DistanceY", 61, 3, -1, 1, Q("0.000173 mm")))
sketch1.addConstraint(Sketcher.Constraint("DistanceX", -1, 1, 6, 2, Q("32.614554 mm")))
sketch1.addConstraint(Sketcher.Constraint("DistanceX", -1, 1, 7, 2, Q("30.574844 mm")))
sketch1.addConstraint(Sketcher.Constraint("DistanceX", -1, 1, 10, 2, Q("25.377937 mm")))
sketch1.addConstraint(Sketcher.Constraint("DistanceY", -1, 1, 10, 2, Q("24.103118 mm")))
sketch1.addConstraint(Sketcher.Constraint("DistanceX", -1, 1, 11, 2, Q("27.381884 mm")))
sketch1.addConstraint(Sketcher.Constraint("DistanceX", -1, 1, 14, 2, Q("19.270147 mm")))
sketch1.addConstraint(Sketcher.Constraint("DistanceX", 25, 2, -1, 1, Q("15.081214 mm")))
sketch1.addConstraint(Sketcher.Constraint("DistanceX", 28, 2, -1, 1, Q("22.462062 mm")))
sketch1.addConstraint(Sketcher.Constraint("DistanceY", -1, 1, 28, 2, Q("26.841307 mm")))
sketch1.addConstraint(Sketcher.Constraint("DistanceX", 29, 2, -1, 1, Q("27.381884 mm")))
sketch1.addConstraint(Sketcher.Constraint("DistanceX", 30, 2, -1, 1, Q("25.377937 mm")))
sketch1.addConstraint(Sketcher.Constraint("DistanceX", 31, 2, -1, 1, Q("28.431537 mm")))
sketch1.addConstraint(Sketcher.Constraint("DistanceY", -1, 1, 34, 2, Q("12.700035 mm")))
sketch1.addConstraint(Sketcher.Constraint("DistanceX", 49, 2, -1, 1, Q("22.156903 mm")))
sketch1.addConstraint(Sketcher.Constraint("DistanceX", 53, 2, -1, 1, Q("14.724982 mm")))
sketch1.addConstraint(Sketcher.Constraint("DistanceX", -1, 1, 61, 2, Q("11.003753 mm")))
sketch1.addConstraint(Sketcher.Constraint("DistanceX", -1, 1, 66, 2, Q("22.156903 mm")))
sketch1.addConstraint(Sketcher.Constraint("DistanceX", -1, 1, 73, 2, Q("33.949115 mm")))
pad1 = body.newObject("PartDesign::Pad", "Pad")
pad1.Profile = sketch1
pad1.setExpression("Length", "Params.pad1_length")

# Sketch on XZ plane
sketch2 = body.newObject("Sketcher::SketchObject", "Sketch001")
sketch2.AttachmentSupport = (doc.getObject("XZ_Plane"), [""])
sketch2.MapMode = "FlatFace"
sketch2.AttachmentOffset = App.Placement(V(0, 0, 25), App.Rotation())
sketch2.addGeometry(Part.Circle(V(0, 0, 0), V(0, 0, 1), 14.710465), False)
sketch2.addConstraint(Sketcher.Constraint("Coincident", 0, 3, -1, 1))
sketch2.addConstraint(Sketcher.Constraint("Diameter", 0, Q("29.42093 mm")))
pocket1 = body.newObject("PartDesign::Pocket", "Pocket")
pocket1.Profile = sketch2
pocket1.setExpression("Length", "Params.pocket1_length")

doc.recompute()
